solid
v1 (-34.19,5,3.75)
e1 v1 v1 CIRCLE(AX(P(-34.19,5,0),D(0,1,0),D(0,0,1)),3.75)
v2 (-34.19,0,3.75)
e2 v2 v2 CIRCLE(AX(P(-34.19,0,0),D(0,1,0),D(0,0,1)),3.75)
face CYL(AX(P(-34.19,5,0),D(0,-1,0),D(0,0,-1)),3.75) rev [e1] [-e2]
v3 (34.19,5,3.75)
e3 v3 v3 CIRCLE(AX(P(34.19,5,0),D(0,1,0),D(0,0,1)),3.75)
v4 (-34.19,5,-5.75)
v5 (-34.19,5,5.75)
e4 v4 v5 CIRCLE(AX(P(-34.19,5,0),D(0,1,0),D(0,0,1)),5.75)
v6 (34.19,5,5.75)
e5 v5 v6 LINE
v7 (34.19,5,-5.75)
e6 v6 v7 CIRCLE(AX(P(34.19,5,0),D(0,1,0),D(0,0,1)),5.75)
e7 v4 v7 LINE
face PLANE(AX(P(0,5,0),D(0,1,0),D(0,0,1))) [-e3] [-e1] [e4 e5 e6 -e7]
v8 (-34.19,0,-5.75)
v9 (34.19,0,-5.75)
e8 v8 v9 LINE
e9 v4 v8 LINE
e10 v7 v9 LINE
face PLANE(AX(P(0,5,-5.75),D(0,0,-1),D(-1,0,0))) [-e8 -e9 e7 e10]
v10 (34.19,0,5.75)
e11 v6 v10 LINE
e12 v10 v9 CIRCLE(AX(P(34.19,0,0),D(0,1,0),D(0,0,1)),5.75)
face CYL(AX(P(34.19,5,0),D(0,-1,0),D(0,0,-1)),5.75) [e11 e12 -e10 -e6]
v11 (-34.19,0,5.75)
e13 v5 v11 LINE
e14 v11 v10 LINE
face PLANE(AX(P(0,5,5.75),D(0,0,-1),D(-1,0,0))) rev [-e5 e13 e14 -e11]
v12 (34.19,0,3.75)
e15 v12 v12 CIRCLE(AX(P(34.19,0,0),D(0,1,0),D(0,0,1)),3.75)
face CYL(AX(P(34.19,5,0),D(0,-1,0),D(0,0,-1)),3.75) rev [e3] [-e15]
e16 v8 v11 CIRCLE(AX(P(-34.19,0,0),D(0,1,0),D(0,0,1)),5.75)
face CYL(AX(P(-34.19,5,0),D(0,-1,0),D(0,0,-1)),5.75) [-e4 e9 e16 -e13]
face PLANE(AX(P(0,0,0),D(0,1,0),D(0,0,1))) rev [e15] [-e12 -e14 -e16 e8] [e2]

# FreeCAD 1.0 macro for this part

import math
import FreeCAD as App
import Part
import Sketcher

doc = App.newDocument("Part")
body = doc.addObject("PartDesign::Body", "Body")

# Sketch on XZ plane
sketch1 = body.newObject("Sketcher::SketchObject", "Sketch")
sketch1.AttachmentSupport = (doc.getObject("XZ_Plane"), [""])
sketch1.MapMode = "FlatFace"
sketch1.addGeometry(Part.LineSegment(App.Vector(-34.2, 5.8, 0), App.Vector(34.2, 5.8, 0)), False)
sketch1.addGeometry(Part.ArcOfCircle(Part.Circle(App.Vector(34.2, 0, 0), App.Vector(0, 0, 1), 5.8), math.radians(-90), math.radians(90)), False)
sketch1.addGeometry(Part.LineSegment(App.Vector(34.2, -5.8, 0), App.Vector(-34.2, -5.8, 0)), False)
sketch1.addGeometry(Part.ArcOfCircle(Part.Circle(App.Vector(-34.2, 0, 0), App.Vector(0, 0, 1), 5.8), math.radians(90), math.radians(270)), False)
sketch1.addGeometry(Part.Circle(App.Vector(-34.2, 0, 0), App.Vector(0, 0, 1), 3.8), False)
sketch1.addGeometry(Part.Circle(App.Vector(34.2, 0, 0), App.Vector(0, 0, 1), 3.8), False)
sketch1.addConstraint(Sketcher.Constraint("Tangent", 0, 2, 1, 2))
sketch1.addConstraint(Sketcher.Constraint("Tangent", 1, 1, 2, 1))
sketch1.addConstraint(Sketcher.Constraint("Tangent", 2, 2, 3, 2))
sketch1.addConstraint(Sketcher.Constraint("Tangent", 3, 1, 0, 1))
sketch1.addConstraint(Sketcher.Constraint("Horizontal", 0))
sketch1.addConstraint(Sketcher.Constraint("Horizontal", 2))
sketch1.addConstraint(Sketcher.Constraint("Coincident", 4, 3, 3, 3))
sketch1.addConstraint(Sketcher.Constraint("Coincident", 5, 3, 1, 3))
sketch1.addConstraint(Sketcher.Constraint("Equal", 4, 5))
sketch1.addConstraint(Sketcher.Constraint("Symmetric", 1, 3, 3, 3, -1, 1))
sketch1.addConstraint(Sketcher.Constraint("Diameter", 4, 7.5))
sketch1.addConstraint(Sketcher.Constraint("Radius", 1, 5.75))
sketch1.addConstraint(Sketcher.Constraint("DistanceX", 0, 1, 0, 2, 68.38))
pad1 = body.newObject("PartDesign::Pad", "Pad")
pad1.Profile = sketch1
pad1.Length = 5
pad1.Reversed = True

doc.recompute()
